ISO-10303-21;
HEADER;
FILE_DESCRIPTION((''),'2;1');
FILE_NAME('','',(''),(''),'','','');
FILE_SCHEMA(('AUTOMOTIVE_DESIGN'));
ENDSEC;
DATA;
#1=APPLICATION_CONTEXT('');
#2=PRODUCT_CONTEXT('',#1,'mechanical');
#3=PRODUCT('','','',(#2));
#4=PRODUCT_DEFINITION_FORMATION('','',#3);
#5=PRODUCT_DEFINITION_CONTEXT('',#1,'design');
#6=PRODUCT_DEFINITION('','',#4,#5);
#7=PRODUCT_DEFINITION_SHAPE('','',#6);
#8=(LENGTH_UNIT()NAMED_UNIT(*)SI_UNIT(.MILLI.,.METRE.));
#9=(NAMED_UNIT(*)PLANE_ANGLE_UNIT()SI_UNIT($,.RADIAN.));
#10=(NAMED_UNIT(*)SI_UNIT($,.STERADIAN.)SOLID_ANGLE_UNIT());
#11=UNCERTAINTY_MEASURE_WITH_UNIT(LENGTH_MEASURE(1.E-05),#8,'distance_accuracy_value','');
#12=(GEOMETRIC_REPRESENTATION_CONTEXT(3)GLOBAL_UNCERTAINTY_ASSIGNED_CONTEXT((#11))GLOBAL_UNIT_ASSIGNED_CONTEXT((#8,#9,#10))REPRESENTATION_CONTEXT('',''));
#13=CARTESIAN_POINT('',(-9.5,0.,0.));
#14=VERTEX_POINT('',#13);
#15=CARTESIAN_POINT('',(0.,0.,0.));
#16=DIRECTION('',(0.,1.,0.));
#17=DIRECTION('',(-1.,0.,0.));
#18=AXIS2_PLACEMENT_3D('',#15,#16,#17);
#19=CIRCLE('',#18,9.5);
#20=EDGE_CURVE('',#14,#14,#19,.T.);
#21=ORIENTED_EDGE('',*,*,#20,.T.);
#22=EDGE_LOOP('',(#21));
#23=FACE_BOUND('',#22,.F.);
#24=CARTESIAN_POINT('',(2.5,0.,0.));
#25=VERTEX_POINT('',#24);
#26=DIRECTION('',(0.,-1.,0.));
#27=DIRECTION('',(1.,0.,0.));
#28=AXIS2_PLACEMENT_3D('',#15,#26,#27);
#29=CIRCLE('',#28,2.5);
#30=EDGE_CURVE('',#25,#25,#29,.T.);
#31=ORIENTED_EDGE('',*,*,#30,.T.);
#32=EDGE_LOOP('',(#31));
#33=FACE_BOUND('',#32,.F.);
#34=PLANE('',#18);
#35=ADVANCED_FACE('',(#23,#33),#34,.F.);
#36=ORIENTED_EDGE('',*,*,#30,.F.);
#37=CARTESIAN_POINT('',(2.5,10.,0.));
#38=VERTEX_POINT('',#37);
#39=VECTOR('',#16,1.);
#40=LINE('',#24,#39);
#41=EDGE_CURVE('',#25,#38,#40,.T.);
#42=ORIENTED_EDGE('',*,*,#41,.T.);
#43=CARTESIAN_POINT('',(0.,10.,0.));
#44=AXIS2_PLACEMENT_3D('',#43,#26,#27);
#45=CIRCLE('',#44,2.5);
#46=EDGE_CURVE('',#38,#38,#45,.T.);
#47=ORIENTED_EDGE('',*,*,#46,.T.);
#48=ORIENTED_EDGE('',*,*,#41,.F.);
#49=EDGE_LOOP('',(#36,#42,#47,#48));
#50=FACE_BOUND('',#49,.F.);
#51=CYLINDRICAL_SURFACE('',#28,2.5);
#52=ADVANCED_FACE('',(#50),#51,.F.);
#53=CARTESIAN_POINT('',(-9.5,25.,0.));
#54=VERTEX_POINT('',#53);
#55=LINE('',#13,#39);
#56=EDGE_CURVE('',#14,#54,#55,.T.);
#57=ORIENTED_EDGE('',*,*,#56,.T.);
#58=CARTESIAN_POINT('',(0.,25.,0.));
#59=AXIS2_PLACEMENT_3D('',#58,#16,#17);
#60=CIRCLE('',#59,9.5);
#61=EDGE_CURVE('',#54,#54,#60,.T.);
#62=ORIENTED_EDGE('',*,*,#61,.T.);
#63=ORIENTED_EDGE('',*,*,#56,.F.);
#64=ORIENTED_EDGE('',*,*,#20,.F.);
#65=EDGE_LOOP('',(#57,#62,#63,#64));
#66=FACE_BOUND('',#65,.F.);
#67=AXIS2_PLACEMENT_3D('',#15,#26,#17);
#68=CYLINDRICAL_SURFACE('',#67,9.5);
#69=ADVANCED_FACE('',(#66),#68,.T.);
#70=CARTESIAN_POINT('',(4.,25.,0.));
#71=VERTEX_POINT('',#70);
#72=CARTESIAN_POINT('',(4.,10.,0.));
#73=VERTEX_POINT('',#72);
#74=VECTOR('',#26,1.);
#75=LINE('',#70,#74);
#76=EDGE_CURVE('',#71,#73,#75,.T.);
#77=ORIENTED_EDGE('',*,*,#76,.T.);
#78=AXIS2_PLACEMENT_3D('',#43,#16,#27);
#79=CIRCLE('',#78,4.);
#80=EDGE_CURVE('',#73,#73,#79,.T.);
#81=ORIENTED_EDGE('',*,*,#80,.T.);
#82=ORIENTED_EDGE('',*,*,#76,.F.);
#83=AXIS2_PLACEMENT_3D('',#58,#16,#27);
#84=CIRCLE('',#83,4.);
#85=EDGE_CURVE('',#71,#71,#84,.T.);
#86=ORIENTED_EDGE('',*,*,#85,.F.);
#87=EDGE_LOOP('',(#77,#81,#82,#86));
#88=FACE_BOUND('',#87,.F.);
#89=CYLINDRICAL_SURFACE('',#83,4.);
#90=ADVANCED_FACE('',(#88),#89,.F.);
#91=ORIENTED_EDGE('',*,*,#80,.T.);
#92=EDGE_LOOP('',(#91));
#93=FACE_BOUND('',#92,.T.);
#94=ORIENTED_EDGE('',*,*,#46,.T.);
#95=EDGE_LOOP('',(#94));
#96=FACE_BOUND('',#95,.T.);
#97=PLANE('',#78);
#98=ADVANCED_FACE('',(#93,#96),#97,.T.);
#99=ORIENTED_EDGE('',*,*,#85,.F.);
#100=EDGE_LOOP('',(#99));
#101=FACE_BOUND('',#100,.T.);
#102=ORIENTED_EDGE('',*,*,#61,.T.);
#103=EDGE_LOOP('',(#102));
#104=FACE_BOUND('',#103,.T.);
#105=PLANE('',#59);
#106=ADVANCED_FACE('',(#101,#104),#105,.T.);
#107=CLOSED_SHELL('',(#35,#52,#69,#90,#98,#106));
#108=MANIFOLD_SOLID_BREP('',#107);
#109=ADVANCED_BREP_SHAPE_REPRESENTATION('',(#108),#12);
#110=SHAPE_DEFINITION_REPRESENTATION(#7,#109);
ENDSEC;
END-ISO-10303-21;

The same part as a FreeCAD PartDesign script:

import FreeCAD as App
import Part
import Sketcher
from FreeCAD import Vector
Q = App.Units.Quantity

doc = App.newDocument("Part")
body = doc.addObject("PartDesign::Body", "Body")

# Sketch on XZ plane
sketch1 = doc.addObject("Sketcher::SketchObject", "Sketch")
body.addObject(sketch1)
sketch1.AttachmentSupport = (doc.XZ_Plane, [""])
sketch1.MapMode = "FlatFace"
sketch1.addGeometry(Part.Circle(Vector(0, 0, 0), Vector(0, 0, 1), 10), False)
sketch1.addConstraint(Sketcher.Constraint("Coincident", 0, 3, -1, 1))
sketch1.addConstraint(Sketcher.Constraint("Diameter", 0, Q("19 mm")))
pad1 = doc.addObject("PartDesign::Pad", "Pad")
body.addObject(pad1)
pad1.Profile = sketch1
pad1.Length = 25
pad1.Reversed = True

# Sketch on XZ plane
sketch2 = doc.addObject("Sketcher::SketchObject", "Sketch001")
body.addObject(sketch2)
sketch2.AttachmentSupport = (doc.XZ_Plane, [""])
sketch2.MapMode = "FlatFace"
sketch2.AttachmentOffset = App.Placement(Vector(0, 0, -25), App.Rotation())
sketch2.addGeometry(Part.Circle(Vector(0, 0, 0), Vector(0, 0, 1), 4), False)
sketch2.addConstraint(Sketcher.Constraint("Coincident", 0, 3, -1, 1))
sketch2.addConstraint(Sketcher.Constraint("Diameter", 0, Q("8 mm")))
pocket1 = doc.addObject("PartDesign::Pocket", "Pocket")
body.addObject(pocket1)
pocket1.Profile = sketch2
pocket1.Length = 15
pocket1.Reversed = True

# Sketch on XZ plane
sketch3 = doc.addObject("Sketcher::SketchObject", "Sketch002")
body.addObject(sketch3)
sketch3.AttachmentSupport = (doc.XZ_Plane, [""])
sketch3.MapMode = "FlatFace"
sketch3.addGeometry(Part.Circle(Vector(0, 0, 0), Vector(0, 0, 1), 2.5), False)
sketch3.addConstraint(Sketcher.Constraint("Coincident", 0, 3, -1, 1))
sketch3.addConstraint(Sketcher.Constraint("Diameter", 0, Q("5 mm")))
pocket2 = doc.addObject("PartDesign::Pocket", "Pocket001")
body.addObject(pocket2)
pocket2.Profile = sketch3
pocket2.Length = 10

doc.recompute()
